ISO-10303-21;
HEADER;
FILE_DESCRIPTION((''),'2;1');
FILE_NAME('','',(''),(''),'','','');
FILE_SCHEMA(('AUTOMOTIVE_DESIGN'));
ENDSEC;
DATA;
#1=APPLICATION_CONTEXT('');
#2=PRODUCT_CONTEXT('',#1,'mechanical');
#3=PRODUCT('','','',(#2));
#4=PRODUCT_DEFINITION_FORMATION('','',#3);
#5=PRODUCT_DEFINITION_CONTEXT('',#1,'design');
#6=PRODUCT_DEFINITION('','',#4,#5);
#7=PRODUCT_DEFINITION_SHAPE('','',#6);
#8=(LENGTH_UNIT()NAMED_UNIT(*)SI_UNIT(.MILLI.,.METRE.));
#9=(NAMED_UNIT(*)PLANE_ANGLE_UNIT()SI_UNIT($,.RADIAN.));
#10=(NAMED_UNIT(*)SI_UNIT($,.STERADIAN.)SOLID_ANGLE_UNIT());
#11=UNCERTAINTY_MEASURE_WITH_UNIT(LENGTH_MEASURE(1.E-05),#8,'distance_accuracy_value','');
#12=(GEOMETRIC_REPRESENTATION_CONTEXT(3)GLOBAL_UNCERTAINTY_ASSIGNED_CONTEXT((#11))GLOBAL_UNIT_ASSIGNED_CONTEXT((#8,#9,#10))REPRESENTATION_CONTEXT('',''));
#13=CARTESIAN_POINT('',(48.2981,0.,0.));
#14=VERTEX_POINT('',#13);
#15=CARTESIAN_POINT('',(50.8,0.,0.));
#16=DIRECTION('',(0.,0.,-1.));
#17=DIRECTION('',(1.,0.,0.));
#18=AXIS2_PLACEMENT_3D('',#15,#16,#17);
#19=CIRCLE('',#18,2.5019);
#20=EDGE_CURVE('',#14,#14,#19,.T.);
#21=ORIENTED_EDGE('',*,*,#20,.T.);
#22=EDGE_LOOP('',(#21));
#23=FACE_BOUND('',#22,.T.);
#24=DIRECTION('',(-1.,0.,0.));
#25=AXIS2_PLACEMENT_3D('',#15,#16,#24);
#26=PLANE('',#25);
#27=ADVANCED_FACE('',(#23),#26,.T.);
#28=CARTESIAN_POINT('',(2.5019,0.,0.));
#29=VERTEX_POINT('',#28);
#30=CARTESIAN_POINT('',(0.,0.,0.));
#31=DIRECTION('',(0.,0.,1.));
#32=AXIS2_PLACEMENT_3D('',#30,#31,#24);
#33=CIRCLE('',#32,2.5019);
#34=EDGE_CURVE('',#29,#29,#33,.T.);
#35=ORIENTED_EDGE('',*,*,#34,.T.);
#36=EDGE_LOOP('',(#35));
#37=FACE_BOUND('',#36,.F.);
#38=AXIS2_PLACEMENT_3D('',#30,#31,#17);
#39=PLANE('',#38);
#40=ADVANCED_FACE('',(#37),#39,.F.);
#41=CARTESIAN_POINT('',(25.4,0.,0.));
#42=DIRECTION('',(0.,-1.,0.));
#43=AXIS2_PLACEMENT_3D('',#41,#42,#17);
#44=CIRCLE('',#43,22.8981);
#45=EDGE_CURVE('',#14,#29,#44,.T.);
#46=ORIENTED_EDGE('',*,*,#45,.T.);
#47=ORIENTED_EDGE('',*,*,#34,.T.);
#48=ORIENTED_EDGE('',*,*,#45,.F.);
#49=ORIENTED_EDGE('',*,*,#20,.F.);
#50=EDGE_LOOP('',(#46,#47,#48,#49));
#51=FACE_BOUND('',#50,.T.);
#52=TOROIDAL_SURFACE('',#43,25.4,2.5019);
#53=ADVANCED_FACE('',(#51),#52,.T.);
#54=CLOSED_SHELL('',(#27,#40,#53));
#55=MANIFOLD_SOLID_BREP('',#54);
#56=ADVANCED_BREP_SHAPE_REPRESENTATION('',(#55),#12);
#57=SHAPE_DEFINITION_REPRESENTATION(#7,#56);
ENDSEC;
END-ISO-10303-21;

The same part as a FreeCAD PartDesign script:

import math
import FreeCAD as App
import Part
import Sketcher

V = App.Vector
Q = App.Units.Quantity

doc = App.newDocument("Part")
body = doc.addObject("PartDesign::Body", "Body")

sketch1 = doc.addObject("Sketcher::SketchObject", "Sketch")
body.addObject(sketch1)
sketch1.AttachmentSupport = (doc.XY_Plane, [""])
sketch1.MapMode = "FlatFace"
sketch1.addGeometry(Part.Circle(V(0, 0, 0), V(0, 0, 1), 2.5019), False)
sketch1.addConstraint([
    Sketcher.Constraint("Coincident", 0, 3, -1, 1),
    Sketcher.Constraint("Diameter", 0, Q("0.197 in")),
])

sketch2 = doc.addObject("Sketcher::SketchObject", "Sketch001")
body.addObject(sketch2)
sketch2.AttachmentSupport = (doc.XZ_Plane, [""])
sketch2.MapMode = "FlatFace"
sketch2.addGeometry(Part.ArcOfCircle(Part.Circle(V(25.4, 0, 0), V(0, 0, 1), 25.4), math.radians(0), math.radians(180)), False)
sketch2.addConstraint([
    Sketcher.Constraint("Coincident", 0, 2, -1, 1),
    Sketcher.Constraint("PointOnObject", 0, 3, -1),
    Sketcher.Constraint("PointOnObject", 0, 1, -1),
    Sketcher.Constraint("Radius", 0, Q("1 in")),
])
doc.recompute()

additivepipe = doc.addObject("PartDesign::AdditivePipe", "AdditivePipe")
body.addObject(additivepipe)
additivepipe.Profile = sketch1
additivepipe.Spine = (sketch2, ["Edge1"])

doc.recompute()
